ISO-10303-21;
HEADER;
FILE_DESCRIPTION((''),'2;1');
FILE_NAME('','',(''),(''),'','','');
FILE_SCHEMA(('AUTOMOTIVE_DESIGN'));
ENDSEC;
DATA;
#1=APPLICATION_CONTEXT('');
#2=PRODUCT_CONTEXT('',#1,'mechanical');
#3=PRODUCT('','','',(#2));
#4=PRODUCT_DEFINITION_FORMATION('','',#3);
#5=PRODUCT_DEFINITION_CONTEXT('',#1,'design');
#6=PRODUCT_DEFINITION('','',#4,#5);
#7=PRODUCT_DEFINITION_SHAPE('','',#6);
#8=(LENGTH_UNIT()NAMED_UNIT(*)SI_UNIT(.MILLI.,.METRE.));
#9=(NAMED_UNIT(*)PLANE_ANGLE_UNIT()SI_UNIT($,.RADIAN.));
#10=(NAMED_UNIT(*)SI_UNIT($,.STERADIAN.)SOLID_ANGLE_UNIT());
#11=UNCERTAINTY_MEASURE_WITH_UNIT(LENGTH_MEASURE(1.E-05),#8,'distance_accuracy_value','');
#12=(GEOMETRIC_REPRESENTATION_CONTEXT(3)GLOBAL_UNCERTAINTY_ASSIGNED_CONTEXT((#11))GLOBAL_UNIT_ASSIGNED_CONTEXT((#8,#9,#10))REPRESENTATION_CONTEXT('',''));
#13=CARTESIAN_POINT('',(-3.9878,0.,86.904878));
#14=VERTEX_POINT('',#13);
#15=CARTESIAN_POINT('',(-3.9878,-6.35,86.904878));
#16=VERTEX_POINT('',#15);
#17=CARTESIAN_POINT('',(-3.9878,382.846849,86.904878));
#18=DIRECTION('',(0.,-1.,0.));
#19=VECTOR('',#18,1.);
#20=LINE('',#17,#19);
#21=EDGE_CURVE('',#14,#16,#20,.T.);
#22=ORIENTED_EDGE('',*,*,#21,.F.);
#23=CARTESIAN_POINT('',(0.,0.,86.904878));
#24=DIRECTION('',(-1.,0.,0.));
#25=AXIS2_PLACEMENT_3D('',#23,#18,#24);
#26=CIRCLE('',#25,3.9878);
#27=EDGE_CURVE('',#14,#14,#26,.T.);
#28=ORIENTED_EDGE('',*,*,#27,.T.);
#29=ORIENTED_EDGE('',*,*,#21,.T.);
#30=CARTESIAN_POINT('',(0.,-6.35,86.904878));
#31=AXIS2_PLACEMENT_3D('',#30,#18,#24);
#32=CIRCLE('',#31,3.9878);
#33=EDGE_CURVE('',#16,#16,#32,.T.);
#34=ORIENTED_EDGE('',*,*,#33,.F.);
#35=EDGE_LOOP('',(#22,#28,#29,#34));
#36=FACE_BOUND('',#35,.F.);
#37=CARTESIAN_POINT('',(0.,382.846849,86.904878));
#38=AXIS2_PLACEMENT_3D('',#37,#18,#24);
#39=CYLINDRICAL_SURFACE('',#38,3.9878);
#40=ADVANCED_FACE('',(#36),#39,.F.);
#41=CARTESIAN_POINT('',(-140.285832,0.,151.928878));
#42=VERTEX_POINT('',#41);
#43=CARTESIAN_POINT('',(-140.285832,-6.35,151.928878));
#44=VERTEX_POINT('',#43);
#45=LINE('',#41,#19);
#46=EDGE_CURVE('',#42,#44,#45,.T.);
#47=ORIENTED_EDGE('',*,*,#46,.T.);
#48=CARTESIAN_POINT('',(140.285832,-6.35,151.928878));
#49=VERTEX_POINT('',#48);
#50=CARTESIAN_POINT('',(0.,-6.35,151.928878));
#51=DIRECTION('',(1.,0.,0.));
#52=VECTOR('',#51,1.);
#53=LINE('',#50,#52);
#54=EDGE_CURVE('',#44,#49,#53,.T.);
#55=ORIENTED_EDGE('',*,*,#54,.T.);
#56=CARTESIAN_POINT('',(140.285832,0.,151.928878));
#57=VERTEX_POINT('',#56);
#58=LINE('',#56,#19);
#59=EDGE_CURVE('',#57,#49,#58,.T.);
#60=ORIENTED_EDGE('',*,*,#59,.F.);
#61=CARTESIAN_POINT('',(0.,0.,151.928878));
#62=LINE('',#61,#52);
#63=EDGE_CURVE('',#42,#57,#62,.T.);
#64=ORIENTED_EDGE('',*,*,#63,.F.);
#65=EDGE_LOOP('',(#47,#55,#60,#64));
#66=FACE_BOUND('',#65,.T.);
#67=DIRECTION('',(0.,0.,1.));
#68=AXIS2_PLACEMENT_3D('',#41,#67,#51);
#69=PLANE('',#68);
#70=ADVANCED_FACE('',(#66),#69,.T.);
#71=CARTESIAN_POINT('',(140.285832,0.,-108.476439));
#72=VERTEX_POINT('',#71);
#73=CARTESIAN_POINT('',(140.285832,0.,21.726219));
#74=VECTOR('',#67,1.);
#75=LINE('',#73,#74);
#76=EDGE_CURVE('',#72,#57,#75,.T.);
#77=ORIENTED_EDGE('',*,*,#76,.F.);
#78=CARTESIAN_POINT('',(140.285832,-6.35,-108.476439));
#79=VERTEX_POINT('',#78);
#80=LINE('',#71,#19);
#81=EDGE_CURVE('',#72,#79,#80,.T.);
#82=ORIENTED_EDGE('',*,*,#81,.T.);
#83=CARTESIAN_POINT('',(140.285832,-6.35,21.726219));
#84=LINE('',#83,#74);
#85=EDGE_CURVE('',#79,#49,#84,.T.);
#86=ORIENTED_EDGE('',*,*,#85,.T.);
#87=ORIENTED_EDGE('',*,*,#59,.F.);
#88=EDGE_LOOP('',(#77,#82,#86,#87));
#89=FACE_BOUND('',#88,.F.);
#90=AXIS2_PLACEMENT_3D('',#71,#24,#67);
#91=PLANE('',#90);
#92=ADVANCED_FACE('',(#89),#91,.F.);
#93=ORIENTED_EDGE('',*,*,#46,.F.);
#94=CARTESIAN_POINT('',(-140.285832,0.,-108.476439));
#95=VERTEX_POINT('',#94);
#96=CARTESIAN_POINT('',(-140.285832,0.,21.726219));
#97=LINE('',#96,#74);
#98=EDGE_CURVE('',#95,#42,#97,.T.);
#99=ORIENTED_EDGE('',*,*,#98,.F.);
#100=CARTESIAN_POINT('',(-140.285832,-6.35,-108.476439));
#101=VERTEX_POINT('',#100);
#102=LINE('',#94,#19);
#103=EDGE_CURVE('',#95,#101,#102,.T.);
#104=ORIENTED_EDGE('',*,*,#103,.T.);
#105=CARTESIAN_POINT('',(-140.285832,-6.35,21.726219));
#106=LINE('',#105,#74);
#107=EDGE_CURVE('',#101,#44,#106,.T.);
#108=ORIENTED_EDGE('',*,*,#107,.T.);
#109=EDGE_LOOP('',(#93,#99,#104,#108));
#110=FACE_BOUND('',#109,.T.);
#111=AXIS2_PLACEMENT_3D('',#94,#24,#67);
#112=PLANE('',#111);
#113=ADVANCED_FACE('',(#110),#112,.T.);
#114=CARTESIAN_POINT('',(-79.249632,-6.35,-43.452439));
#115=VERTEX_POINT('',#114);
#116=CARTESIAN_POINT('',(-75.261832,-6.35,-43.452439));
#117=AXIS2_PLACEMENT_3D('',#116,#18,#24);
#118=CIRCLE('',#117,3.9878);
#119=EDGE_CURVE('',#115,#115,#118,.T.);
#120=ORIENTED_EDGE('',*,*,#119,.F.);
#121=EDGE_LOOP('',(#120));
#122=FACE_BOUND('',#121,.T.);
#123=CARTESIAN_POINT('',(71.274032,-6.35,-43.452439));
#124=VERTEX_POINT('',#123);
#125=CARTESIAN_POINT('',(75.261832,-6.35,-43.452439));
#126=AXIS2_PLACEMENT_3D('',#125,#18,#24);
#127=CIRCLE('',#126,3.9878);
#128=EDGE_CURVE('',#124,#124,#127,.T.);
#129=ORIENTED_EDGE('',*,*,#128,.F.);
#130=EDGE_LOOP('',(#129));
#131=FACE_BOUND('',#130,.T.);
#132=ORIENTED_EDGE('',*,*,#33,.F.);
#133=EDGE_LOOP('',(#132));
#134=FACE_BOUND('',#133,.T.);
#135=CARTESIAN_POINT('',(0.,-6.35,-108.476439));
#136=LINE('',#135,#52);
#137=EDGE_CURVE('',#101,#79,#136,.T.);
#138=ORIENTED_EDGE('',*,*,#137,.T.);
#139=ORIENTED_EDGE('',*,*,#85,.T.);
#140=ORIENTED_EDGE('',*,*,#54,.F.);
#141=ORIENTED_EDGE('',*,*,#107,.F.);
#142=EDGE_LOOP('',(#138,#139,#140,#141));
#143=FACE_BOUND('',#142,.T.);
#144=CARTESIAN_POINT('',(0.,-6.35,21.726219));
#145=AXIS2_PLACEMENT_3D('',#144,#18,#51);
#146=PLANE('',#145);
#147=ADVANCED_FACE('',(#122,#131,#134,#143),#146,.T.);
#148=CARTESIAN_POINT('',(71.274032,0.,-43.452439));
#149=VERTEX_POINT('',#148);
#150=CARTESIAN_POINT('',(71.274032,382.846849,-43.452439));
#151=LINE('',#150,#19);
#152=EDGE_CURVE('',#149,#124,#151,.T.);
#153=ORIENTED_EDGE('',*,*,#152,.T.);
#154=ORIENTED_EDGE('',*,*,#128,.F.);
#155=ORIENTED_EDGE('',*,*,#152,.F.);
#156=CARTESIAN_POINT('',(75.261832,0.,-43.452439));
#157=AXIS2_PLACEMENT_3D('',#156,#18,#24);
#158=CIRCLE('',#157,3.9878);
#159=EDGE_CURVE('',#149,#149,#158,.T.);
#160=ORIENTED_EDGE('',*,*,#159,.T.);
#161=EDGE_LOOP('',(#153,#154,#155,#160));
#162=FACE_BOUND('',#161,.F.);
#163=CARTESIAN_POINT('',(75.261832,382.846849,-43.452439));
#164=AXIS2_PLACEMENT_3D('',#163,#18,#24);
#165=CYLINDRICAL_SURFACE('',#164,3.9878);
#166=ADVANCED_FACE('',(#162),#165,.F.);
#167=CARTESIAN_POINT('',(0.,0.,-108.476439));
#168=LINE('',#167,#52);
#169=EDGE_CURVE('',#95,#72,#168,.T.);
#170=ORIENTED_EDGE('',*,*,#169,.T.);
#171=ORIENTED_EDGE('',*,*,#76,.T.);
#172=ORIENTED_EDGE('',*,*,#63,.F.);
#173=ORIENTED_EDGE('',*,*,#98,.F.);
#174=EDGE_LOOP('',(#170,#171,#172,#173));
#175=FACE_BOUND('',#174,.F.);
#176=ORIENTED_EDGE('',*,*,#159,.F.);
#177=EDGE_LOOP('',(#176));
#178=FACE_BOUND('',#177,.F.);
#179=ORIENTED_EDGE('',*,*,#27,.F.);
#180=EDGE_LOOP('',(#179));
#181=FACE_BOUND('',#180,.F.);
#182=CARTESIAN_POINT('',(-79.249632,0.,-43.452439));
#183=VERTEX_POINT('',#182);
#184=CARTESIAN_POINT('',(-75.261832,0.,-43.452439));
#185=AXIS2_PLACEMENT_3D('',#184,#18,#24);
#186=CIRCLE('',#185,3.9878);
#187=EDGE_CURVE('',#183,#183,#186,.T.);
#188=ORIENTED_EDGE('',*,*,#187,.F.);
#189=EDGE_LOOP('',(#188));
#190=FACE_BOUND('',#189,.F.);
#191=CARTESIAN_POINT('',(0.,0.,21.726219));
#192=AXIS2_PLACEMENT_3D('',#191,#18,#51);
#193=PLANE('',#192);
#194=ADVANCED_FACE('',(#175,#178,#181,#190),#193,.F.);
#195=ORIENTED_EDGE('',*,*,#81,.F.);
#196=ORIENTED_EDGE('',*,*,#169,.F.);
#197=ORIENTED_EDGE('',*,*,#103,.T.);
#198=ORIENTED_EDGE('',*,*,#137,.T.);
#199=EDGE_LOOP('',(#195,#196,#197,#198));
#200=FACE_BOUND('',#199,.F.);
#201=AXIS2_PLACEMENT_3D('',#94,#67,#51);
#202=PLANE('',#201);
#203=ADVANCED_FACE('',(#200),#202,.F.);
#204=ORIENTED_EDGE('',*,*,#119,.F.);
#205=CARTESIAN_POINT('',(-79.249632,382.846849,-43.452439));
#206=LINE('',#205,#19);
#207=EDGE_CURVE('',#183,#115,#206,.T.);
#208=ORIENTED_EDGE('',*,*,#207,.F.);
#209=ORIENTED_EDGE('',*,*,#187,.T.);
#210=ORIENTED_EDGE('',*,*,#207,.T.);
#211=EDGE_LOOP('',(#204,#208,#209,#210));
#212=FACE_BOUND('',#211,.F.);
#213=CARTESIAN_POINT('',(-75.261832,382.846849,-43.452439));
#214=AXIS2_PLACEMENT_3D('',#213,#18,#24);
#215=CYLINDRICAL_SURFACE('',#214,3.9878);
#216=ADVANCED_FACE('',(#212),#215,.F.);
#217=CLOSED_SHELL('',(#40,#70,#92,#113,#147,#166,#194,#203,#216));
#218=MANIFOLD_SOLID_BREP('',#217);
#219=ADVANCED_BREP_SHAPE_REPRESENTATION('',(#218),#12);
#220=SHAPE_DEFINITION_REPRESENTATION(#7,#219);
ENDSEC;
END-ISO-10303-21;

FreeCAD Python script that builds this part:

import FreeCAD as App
import Part
import Sketcher

V = App.Vector
Q = App.Units.Quantity

doc = App.newDocument("Part")
body = doc.addObject("PartDesign::Body", "Body")

# Sketch on XZ plane
sketch1 = doc.addObject("Sketcher::SketchObject", "Sketch")
body.addObject(sketch1)
sketch1.AttachmentSupport = (doc.XZ_Plane, [""])
sketch1.MapMode = "FlatFace"
sketch1.addGeometry(Part.LineSegment(V(-140.285832, 151.928878, 0), V(-140.285832, -108.476439, 0)), False)
sketch1.addGeometry(Part.LineSegment(V(-140.285832, -108.476439, 0), V(140.285832, -108.476439, 0)), False)
sketch1.addGeometry(Part.LineSegment(V(140.285832, -108.476439, 0), V(140.285832, 151.928878, 0)), False)
sketch1.addGeometry(Part.LineSegment(V(140.285832, 151.928878, 0), V(-140.285832, 151.928878, 0)), False)
sketch1.addConstraint(Sketcher.Constraint("Coincident", 0, 2, 1, 1))
sketch1.addConstraint(Sketcher.Constraint("Coincident", 1, 2, 2, 1))
sketch1.addConstraint(Sketcher.Constraint("Coincident", 2, 2, 3, 1))
sketch1.addConstraint(Sketcher.Constraint("Coincident", 3, 2, 0, 1))
sketch1.addConstraint(Sketcher.Constraint("Vertical", 0))
sketch1.addConstraint(Sketcher.Constraint("Horizontal", 1))
sketch1.addConstraint(Sketcher.Constraint("Vertical", 2))
sketch1.addConstraint(Sketcher.Constraint("Horizontal", 3))
sketch1.addConstraint(Sketcher.Constraint("DistanceX", 1, 1, 1, 2, Q("280.571664 mm")))
sketch1.addConstraint(Sketcher.Constraint("DistanceY", 0, 2, 0, 1, Q("260.405317 mm")))
sketch1.addConstraint(Sketcher.Constraint("DistanceX", 0, 2, -1, 1, Q("140.285832 mm")))
sketch1.addConstraint(Sketcher.Constraint("DistanceY", 0, 2, -1, 1, Q("108.476439 mm")))
pad1 = doc.addObject("PartDesign::Pad", "Pad")
body.addObject(pad1)
pad1.Profile = sketch1
pad1.Length = Q("0.25 in")

# Sketch on XZ plane
sketch2 = doc.addObject("Sketcher::SketchObject", "Sketch001")
body.addObject(sketch2)
sketch2.AttachmentSupport = (doc.XZ_Plane, [""])
sketch2.MapMode = "FlatFace"
sketch2.addGeometry(Part.Circle(V(0, 86.904878, 0), V(0, 0, 1), 3.9878), False)
sketch2.addGeometry(Part.Circle(V(-75.261832, -43.452439, 0), V(0, 0, 1), 3.9878), False)
sketch2.addGeometry(Part.Circle(V(75.261832, -43.452439, 0), V(0, 0, 1), 3.9878), False)
sketch2.addConstraint(Sketcher.Constraint("Equal", 0, 1))
sketch2.addConstraint(Sketcher.Constraint("Equal", 1, 2))
sketch2.addConstraint(Sketcher.Constraint("Symmetric", 1, 3, 2, 3, -2))
sketch2.addConstraint(Sketcher.Constraint("PointOnObject", 0, 3, -2))
sketch2.addConstraint(Sketcher.Constraint("Diameter", 0, Q("0.314 in")))
sketch2.addConstraint(Sketcher.Constraint("DistanceX", 1, 3, -1, 1, Q("75.261832 mm")))
sketch2.addConstraint(Sketcher.Constraint("DistanceY", 1, 3, -1, 1, Q("43.452439 mm")))
sketch2.addConstraint(Sketcher.Constraint("DistanceY", -1, 1, 0, 3, Q("86.904878 mm")))
doc.recompute()
hole = doc.addObject("PartDesign::Hole", "Hole")
body.addObject(hole)
hole.Profile = sketch2
hole.ThreadType = "None"
hole.Diameter = Q("0.314 in")
hole.DepthType = "ThroughAll"
hole.Reversed = True

doc.recompute()
